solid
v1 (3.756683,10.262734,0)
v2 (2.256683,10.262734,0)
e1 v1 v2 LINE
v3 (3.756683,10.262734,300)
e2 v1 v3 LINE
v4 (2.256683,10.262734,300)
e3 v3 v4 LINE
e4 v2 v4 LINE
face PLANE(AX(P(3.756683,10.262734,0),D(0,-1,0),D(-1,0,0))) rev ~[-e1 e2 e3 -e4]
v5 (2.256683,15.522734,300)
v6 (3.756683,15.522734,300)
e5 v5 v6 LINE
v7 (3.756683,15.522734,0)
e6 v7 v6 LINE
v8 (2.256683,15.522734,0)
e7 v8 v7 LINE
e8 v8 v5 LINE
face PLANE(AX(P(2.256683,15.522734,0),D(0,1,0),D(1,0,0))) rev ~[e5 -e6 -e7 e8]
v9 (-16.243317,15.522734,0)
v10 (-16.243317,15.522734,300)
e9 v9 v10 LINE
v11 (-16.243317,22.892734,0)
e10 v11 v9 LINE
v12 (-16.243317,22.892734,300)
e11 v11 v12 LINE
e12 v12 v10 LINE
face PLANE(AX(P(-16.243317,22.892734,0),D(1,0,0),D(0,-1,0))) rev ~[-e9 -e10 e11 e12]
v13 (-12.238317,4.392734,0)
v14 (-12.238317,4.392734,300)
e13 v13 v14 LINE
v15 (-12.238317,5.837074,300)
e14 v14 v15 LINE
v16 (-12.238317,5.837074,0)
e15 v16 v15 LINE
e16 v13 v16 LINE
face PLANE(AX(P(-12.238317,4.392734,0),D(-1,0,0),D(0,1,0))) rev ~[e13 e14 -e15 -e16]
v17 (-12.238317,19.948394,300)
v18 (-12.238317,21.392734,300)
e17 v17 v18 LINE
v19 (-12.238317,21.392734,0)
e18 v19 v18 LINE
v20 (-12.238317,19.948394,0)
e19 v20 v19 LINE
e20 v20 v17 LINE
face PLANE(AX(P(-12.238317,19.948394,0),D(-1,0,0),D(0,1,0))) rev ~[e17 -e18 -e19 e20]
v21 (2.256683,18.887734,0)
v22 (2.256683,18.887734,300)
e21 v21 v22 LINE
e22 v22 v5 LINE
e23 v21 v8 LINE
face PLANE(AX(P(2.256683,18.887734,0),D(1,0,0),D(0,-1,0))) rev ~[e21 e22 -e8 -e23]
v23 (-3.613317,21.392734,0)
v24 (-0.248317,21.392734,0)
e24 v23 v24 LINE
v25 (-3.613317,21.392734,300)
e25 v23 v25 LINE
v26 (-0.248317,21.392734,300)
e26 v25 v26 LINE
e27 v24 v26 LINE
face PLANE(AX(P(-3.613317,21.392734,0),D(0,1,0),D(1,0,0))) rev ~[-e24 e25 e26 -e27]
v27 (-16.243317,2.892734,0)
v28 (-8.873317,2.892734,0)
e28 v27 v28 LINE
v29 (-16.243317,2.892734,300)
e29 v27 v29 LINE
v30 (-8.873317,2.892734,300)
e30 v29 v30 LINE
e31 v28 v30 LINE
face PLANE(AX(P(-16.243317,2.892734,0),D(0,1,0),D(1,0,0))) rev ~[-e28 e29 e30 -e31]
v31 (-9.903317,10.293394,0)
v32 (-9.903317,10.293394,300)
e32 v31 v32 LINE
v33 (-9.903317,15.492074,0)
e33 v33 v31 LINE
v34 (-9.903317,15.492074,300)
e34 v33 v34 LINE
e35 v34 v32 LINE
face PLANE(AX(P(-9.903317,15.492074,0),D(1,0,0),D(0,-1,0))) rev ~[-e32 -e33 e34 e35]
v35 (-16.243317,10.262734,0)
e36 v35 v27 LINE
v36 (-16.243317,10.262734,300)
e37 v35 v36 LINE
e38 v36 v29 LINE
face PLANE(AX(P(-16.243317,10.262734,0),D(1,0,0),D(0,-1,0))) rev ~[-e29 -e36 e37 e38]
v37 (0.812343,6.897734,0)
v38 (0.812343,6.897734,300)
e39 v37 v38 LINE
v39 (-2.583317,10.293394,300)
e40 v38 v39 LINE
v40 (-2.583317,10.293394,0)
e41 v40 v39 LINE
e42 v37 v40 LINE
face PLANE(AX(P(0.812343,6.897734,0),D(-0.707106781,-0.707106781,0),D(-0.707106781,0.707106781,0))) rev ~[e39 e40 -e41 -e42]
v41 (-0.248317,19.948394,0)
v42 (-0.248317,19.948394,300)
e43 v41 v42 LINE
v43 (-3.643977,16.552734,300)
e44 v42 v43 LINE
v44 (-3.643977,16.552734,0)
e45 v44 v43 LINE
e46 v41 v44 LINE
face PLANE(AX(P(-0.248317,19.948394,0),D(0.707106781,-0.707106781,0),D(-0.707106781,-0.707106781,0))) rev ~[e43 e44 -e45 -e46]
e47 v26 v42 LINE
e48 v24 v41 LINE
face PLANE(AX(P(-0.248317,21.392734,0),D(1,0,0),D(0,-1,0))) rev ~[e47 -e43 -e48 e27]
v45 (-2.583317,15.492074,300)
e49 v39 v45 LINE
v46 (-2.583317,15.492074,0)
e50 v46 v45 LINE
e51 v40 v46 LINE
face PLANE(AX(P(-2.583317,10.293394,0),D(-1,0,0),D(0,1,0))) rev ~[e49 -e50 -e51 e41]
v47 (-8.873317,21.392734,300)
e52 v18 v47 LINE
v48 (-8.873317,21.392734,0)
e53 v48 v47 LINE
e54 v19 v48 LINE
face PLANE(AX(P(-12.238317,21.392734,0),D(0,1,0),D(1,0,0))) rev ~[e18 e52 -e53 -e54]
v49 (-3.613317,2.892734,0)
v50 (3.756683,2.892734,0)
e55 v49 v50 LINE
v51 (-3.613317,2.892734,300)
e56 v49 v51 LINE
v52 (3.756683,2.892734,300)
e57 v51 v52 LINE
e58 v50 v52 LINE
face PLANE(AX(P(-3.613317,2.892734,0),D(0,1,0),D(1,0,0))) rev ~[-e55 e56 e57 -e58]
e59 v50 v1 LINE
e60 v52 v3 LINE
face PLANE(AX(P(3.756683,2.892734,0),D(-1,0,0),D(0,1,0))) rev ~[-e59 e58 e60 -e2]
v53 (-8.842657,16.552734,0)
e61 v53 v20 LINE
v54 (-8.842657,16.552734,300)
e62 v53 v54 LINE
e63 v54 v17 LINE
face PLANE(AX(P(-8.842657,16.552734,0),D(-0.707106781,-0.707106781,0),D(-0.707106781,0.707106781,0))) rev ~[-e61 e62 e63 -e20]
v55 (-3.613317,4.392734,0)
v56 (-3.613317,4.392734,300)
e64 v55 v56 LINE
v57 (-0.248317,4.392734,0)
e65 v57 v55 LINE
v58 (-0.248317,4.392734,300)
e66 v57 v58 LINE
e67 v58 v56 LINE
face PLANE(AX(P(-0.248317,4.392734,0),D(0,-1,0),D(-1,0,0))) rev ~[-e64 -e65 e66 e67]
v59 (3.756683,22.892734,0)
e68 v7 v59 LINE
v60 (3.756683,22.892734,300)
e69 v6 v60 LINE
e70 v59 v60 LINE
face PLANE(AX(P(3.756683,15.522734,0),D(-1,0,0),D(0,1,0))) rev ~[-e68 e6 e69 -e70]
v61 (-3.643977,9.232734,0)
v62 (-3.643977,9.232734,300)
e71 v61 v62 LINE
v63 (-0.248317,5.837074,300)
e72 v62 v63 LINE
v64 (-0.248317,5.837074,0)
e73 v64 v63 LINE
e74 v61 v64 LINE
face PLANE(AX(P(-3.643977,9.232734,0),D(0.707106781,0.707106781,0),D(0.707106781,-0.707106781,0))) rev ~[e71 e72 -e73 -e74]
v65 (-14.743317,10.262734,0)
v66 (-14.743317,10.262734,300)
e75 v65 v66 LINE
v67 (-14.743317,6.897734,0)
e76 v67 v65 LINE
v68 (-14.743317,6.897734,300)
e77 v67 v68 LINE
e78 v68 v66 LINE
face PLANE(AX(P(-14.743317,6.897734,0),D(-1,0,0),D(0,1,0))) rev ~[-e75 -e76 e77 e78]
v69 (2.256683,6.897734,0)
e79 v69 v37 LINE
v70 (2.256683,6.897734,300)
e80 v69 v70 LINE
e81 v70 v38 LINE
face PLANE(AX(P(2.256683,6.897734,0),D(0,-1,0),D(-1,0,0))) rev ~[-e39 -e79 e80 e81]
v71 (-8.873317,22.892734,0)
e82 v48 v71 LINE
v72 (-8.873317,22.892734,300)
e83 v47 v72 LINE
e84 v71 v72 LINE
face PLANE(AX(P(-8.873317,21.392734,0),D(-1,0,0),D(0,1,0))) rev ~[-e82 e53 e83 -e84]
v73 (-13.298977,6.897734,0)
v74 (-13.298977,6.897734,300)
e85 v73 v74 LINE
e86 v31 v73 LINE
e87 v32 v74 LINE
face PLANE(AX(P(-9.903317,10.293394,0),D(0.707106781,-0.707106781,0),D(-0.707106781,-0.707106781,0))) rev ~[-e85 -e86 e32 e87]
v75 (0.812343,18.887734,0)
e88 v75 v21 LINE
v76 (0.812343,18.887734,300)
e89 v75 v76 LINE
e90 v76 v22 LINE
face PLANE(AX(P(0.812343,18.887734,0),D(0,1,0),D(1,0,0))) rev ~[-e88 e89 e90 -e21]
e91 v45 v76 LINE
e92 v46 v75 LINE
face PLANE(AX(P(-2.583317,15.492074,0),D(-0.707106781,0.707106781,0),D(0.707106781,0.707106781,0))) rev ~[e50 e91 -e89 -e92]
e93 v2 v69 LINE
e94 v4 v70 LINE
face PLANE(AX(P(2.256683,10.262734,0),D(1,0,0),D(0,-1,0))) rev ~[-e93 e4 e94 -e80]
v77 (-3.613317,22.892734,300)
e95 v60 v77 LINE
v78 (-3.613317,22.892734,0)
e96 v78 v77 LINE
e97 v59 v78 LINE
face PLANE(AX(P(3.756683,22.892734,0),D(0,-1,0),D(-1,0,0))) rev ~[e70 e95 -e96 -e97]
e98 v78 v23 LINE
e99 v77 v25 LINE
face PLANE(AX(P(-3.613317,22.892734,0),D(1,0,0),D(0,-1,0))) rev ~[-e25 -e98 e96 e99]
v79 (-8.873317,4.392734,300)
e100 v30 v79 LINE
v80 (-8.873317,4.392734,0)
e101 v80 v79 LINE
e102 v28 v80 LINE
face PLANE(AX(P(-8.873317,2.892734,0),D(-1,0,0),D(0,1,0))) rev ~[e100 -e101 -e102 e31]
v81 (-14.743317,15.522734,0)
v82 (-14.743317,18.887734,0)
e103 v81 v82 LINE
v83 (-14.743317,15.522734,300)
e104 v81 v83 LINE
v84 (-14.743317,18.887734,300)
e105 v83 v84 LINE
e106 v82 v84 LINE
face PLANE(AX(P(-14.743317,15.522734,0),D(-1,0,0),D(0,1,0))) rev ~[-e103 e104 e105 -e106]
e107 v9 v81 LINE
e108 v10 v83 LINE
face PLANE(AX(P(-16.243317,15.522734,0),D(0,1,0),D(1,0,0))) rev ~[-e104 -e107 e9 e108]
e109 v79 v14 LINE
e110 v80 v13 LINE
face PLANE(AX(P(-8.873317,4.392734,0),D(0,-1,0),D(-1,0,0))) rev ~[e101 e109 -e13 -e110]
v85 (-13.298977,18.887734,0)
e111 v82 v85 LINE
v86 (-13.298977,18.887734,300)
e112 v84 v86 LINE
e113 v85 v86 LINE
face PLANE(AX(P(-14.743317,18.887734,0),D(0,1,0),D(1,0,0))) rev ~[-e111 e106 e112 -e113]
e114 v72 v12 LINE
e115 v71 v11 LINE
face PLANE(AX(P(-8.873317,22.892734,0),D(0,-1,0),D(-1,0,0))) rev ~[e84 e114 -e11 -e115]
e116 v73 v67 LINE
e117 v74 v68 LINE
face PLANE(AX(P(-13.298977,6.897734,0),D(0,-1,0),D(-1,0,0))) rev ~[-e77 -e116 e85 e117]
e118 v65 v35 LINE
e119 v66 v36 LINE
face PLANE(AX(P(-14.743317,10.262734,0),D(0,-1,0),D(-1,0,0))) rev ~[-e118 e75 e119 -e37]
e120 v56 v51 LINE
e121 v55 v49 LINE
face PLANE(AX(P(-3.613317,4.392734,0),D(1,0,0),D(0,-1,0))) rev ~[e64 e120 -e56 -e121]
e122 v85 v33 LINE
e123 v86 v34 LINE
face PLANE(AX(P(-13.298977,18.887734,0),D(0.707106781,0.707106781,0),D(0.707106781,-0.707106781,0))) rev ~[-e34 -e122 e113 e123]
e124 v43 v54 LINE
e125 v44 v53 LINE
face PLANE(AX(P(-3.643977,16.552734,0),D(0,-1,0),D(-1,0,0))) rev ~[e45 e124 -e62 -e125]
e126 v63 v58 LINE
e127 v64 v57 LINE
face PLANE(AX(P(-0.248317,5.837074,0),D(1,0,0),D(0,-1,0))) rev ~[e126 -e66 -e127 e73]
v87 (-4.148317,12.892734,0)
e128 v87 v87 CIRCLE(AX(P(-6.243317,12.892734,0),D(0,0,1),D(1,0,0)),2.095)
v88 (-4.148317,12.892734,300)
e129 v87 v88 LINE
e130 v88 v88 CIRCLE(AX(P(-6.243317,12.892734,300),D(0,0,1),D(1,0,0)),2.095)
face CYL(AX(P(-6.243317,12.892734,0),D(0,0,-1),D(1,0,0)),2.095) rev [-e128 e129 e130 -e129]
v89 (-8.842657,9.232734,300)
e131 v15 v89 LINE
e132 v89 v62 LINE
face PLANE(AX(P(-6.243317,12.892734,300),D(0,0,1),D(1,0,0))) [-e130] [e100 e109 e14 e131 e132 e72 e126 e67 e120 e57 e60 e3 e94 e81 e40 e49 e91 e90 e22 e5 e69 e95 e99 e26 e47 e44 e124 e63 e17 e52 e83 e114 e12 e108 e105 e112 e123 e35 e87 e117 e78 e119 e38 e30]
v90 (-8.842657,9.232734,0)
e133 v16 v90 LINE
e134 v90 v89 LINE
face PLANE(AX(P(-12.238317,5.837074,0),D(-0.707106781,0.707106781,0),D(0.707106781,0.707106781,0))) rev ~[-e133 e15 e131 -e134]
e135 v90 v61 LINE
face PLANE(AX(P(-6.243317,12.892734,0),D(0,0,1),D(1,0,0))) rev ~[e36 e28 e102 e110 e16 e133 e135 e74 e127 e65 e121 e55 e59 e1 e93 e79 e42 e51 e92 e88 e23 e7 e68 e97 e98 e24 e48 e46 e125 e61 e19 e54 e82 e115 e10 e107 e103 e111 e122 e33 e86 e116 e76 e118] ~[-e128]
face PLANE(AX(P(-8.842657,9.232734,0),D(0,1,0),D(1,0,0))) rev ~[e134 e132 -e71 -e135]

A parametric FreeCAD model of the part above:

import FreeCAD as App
import Part
import Sketcher

V = App.Vector
Q = App.Units.Quantity


def add_polygon(sketch, points):
    """Adds a closed chain of lines whose ends are joined by coincident constraints."""
    first, n = sketch.GeometryCount, len(points)
    for a, b in zip(points, points[1:] + points[:1]):
        sketch.addGeometry(Part.LineSegment(App.Vector(*a, 0), App.Vector(*b, 0)), False)
    for i in range(n):
        sketch.addConstraint(Sketcher.Constraint("Coincident", first + i, 2, first + (i + 1) % n, 1))

doc = App.newDocument("Part")
body = doc.addObject("PartDesign::Body", "Body")

# Sketch on XY plane
sketch1 = body.newObject("Sketcher::SketchObject", "Sketch")
sketch1.AttachmentSupport = (doc.getObject("XY_Plane"), [""])
sketch1.MapMode = "FlatFace"
add_polygon(sketch1, [(-3.6, 16.6), (-8.8, 16.6), (-12.2, 19.9), (-12.2, 21.4), (-8.9, 21.4), (-8.9, 22.9), (-16.2, 22.9), (-16.2, 15.5), (-14.7, 15.5), (-14.7, 18.9), (-13.3, 18.9), (-9.9, 15.5), (-9.9, 10.3), (-13.3, 6.9), (-14.7, 6.9), (-14.7, 10.3), (-16.2, 10.3), (-16.2, 2.9), (-8.9, 2.9), (-8.9, 4.4), (-12.2, 4.4), (-12.2, 5.8), (-8.8, 9.2), (-3.6, 9.2), (-0.2, 5.8), (-0.2, 4.4), (-3.6, 4.4), (-3.6, 2.9), (3.8, 2.9), (3.8, 10.3), (2.3, 10.3), (2.3, 6.9), (0.8, 6.9), (-2.6, 10.3), (-2.6, 15.5), (0.8, 18.9), (2.3, 18.9), (2.3, 15.5), (3.8, 15.5), (3.8, 22.9), (-3.6, 22.9), (-3.6, 21.4), (-0.2, 21.4), (-0.2, 19.9)])  # lines 0-43
sketch1.addGeometry(Part.Circle(V(-6.2, 12.9, 0), V(0, 0, 1), 2.1), False)  # 44
sketch1.addConstraint(Sketcher.Constraint("Horizontal", 0))
sketch1.addConstraint(Sketcher.Constraint("Vertical", 2))
sketch1.addConstraint(Sketcher.Constraint("Horizontal", 3))
sketch1.addConstraint(Sketcher.Constraint("Vertical", 4))
sketch1.addConstraint(Sketcher.Constraint("Horizontal", 5))
sketch1.addConstraint(Sketcher.Constraint("Vertical", 6))
sketch1.addConstraint(Sketcher.Constraint("Horizontal", 7))
sketch1.addConstraint(Sketcher.Constraint("Vertical", 8))
sketch1.addConstraint(Sketcher.Constraint("Horizontal", 9))
sketch1.addConstraint(Sketcher.Constraint("Vertical", 11))
sketch1.addConstraint(Sketcher.Constraint("Horizontal", 13))
sketch1.addConstraint(Sketcher.Constraint("Vertical", 14))
sketch1.addConstraint(Sketcher.Constraint("Horizontal", 15))
sketch1.addConstraint(Sketcher.Constraint("Vertical", 16))
sketch1.addConstraint(Sketcher.Constraint("Horizontal", 17))
sketch1.addConstraint(Sketcher.Constraint("Vertical", 18))
sketch1.addConstraint(Sketcher.Constraint("Horizontal", 19))
sketch1.addConstraint(Sketcher.Constraint("Vertical", 20))
sketch1.addConstraint(Sketcher.Constraint("Horizontal", 22))
sketch1.addConstraint(Sketcher.Constraint("Vertical", 24))
sketch1.addConstraint(Sketcher.Constraint("Horizontal", 25))
sketch1.addConstraint(Sketcher.Constraint("Vertical", 26))
sketch1.addConstraint(Sketcher.Constraint("Horizontal", 27))
sketch1.addConstraint(Sketcher.Constraint("Vertical", 28))
sketch1.addConstraint(Sketcher.Constraint("Horizontal", 29))
sketch1.addConstraint(Sketcher.Constraint("Vertical", 30))
sketch1.addConstraint(Sketcher.Constraint("Horizontal", 31))
sketch1.addConstraint(Sketcher.Constraint("Vertical", 33))
sketch1.addConstraint(Sketcher.Constraint("Horizontal", 35))
sketch1.addConstraint(Sketcher.Constraint("Vertical", 36))
sketch1.addConstraint(Sketcher.Constraint("Horizontal", 37))
sketch1.addConstraint(Sketcher.Constraint("Vertical", 38))
sketch1.addConstraint(Sketcher.Constraint("Horizontal", 39))
sketch1.addConstraint(Sketcher.Constraint("Vertical", 40))
sketch1.addConstraint(Sketcher.Constraint("Horizontal", 41))
sketch1.addConstraint(Sketcher.Constraint("Vertical", 42))
sketch1.addConstraint(Sketcher.Constraint("Parallel", 1, 10))
sketch1.addConstraint(Sketcher.Constraint("Perpendicular", 10, 12))
sketch1.addConstraint(Sketcher.Constraint("Parallel", 12, 21))
sketch1.addConstraint(Sketcher.Constraint("Perpendicular", 21, 23))
sketch1.addConstraint(Sketcher.Constraint("Parallel", 23, 32))
sketch1.addConstraint(Sketcher.Constraint("Perpendicular", 32, 34))
sketch1.addConstraint(Sketcher.Constraint("Parallel", 34, 43))
sketch1.addConstraint(Sketcher.Constraint("Horizontal", 20, 2, 23, 2))
sketch1.addConstraint(Sketcher.Constraint("Horizontal", 19, 2, 24, 2))
sketch1.addConstraint(Sketcher.Constraint("Horizontal", 17, 2, 26, 2))
sketch1.addConstraint(Sketcher.Constraint("Horizontal", 15, 2, 28, 2))
sketch1.addConstraint(Sketcher.Constraint("Horizontal", 13, 2, 30, 2))
sketch1.addConstraint(Sketcher.Constraint("Horizontal", 11, 2, 32, 2))
sketch1.addConstraint(Sketcher.Constraint("Horizontal", 10, 2, 33, 2))
sketch1.addConstraint(Sketcher.Constraint("Horizontal", 9, 2, 34, 2))
sketch1.addConstraint(Sketcher.Constraint("Horizontal", 7, 2, 36, 2))
sketch1.addConstraint(Sketcher.Constraint("Horizontal", 5, 2, 38, 2))
sketch1.addConstraint(Sketcher.Constraint("Horizontal", 3, 2, 40, 2))
sketch1.addConstraint(Sketcher.Constraint("Horizontal", 1, 2, 42, 2))
sketch1.addConstraint(Sketcher.Constraint("Vertical", 9, 2, 12, 2))
sketch1.addConstraint(Sketcher.Constraint("Vertical", 8, 2, 13, 2))
sketch1.addConstraint(Sketcher.Constraint("Vertical", 6, 2, 15, 2))
sketch1.addConstraint(Sketcher.Constraint("Vertical", 4, 2, 17, 2))
sketch1.addConstraint(Sketcher.Constraint("Vertical", 2, 2, 19, 2))
sketch1.addConstraint(Sketcher.Constraint("Vertical", 0, 2, 21, 2))
sketch1.addConstraint(Sketcher.Constraint("Vertical", 31, 2, 34, 2))
sketch1.addConstraint(Sketcher.Constraint("Vertical", 30, 2, 35, 2))
sketch1.addConstraint(Sketcher.Constraint("Vertical", 28, 2, 37, 2))
sketch1.addConstraint(Sketcher.Constraint("Vertical", 26, 2, 39, 2))
sketch1.addConstraint(Sketcher.Constraint("Vertical", 24, 2, 41, 2))
sketch1.addConstraint(Sketcher.Constraint("Equal", 19, 25))
sketch1.addConstraint(Sketcher.Constraint("Equal", 17, 27))
sketch1.addConstraint(Sketcher.Constraint("Equal", 15, 29))
sketch1.addConstraint(Sketcher.Constraint("Equal", 13, 31))
sketch1.addConstraint(Sketcher.Constraint("Equal", 35, 2))
sketch1.addConstraint(Sketcher.Constraint("Equal", 37, 4))
sketch1.addConstraint(Sketcher.Constraint("Equal", 39, 6))
sketch1.addConstraint(Sketcher.Constraint("Equal", 41, 8))
sketch1.addConstraint(Sketcher.Constraint("Equal", 22, 11))
sketch1.addConstraint(Sketcher.Constraint("Equal", 8, 14))
sketch1.addConstraint(Sketcher.Constraint("Equal", 6, 16))
sketch1.addConstraint(Sketcher.Constraint("Equal", 4, 18))
sketch1.addConstraint(Sketcher.Constraint("Equal", 2, 20))
sketch1.addConstraint(Sketcher.Constraint("Equal", 1, 10))
sketch1.addConstraint(Sketcher.Constraint("Diameter", 44, Q("4.19 mm")))
sketch1.addConstraint(Sketcher.Constraint("DistanceX", 7, 1, 7, 2, Q("1.5 mm")))
sketch1.addConstraint(Sketcher.Constraint("DistanceY", 44, 3, 4, 2, Q("10 mm")))
sketch1.addConstraint(Sketcher.Constraint("DistanceX", 5, 2, 5, 1, Q("7.37 mm")))
sketch1.addConstraint(Sketcher.Constraint("DistanceX", 3, 1, 3, 2, Q("3.365 mm")))
sketch1.addConstraint(Sketcher.Constraint("DistanceY", 44, 3, 0, 2, Q("3.66 mm")))
sketch1.addConstraint(Sketcher.Constraint("DistanceX", 3, 2, 44, 3, Q("2.63 mm")))
sketch1.addConstraint(Sketcher.Constraint("DistanceY", 14, 2, 7, 2, Q("5.26 mm")))
sketch1.addConstraint(Sketcher.Constraint("DistanceX", 0, 2, 0, 1, Q("5.19868 mm")))
sketch1.addConstraint(Sketcher.Constraint("DistanceX", 44, 3, -1, 1, Q("6.243317 mm")))
sketch1.addConstraint(Sketcher.Constraint("DistanceY", -1, 1, 44, 3, Q("12.892734 mm")))
pad1 = body.newObject("PartDesign::Pad", "Pad")
pad1.Profile = sketch1
pad1.Length = 300

doc.recompute()
